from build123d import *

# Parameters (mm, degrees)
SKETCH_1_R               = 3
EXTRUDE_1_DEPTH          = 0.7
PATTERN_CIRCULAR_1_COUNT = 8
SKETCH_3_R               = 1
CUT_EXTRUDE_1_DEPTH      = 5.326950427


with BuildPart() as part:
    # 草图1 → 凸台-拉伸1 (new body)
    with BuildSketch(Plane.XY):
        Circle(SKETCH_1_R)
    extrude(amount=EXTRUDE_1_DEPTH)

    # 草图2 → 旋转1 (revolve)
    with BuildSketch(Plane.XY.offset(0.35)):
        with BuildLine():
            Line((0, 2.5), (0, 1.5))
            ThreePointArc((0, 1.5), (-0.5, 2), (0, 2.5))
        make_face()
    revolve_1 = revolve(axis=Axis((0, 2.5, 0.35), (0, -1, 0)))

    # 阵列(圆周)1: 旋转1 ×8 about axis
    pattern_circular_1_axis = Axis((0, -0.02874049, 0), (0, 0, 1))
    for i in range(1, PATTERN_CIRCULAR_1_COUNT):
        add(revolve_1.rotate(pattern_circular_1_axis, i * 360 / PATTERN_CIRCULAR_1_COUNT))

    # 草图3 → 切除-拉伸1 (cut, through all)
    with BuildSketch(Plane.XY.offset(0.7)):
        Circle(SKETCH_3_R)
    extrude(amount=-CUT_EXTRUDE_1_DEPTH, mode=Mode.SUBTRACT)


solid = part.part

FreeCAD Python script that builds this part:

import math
import FreeCAD as App
import Part
import Sketcher

doc = App.newDocument("Part")
body = doc.addObject("PartDesign::Body", "Body")

# Sketch on XY plane
sketch1 = body.newObject("Sketcher::SketchObject", "Sketch")
sketch1.AttachmentSupport = (doc.getObject("XY_Plane"), [""])
sketch1.MapMode = "FlatFace"
sketch1.addGeometry(Part.Circle(App.Vector(0, 0, 0), App.Vector(0, 0, 1), 3), False)
sketch1.addConstraint([
    Sketcher.Constraint("Coincident", 0, 3, -1, 1),
    Sketcher.Constraint("Diameter", 0, 6.0),
])
pad1 = body.newObject("PartDesign::Pad", "Pad")
pad1.Profile = sketch1
pad1.Length = 0.7

# Sketch on XY plane
sketch2 = body.newObject("Sketcher::SketchObject", "Sketch001")
sketch2.AttachmentSupport = (doc.getObject("XY_Plane"), [""])
sketch2.MapMode = "FlatFace"
sketch2.AttachmentOffset = App.Placement(App.Vector(0, 0, 0.35), App.Rotation())
sketch2.addGeometry([
    Part.LineSegment(App.Vector(0, 1.5, 0), App.Vector(0, 2.5, 0)),
    Part.ArcOfCircle(Part.Circle(App.Vector(0, 2, 0), App.Vector(0, 0, 1), 0.5), math.radians(90), math.radians(270)),
], False)
sketch2.addConstraint([
    Sketcher.Constraint("Coincident", 0, 1, 1, 2),
    Sketcher.Constraint("Coincident", 1, 1, 0, 2),
    Sketcher.Constraint("Vertical", 0),
    Sketcher.Constraint("PointOnObject", 1, 3, -2),
    Sketcher.Constraint("PointOnObject", 0, 1, -2),
    Sketcher.Constraint("Radius", 1, 0.5),
    Sketcher.Constraint("DistanceY", -1, 1, 1, 3, 2.0),
])
revolution = body.newObject("PartDesign::Revolution", "Revolution")
revolution.Profile = sketch2
revolution.ReferenceAxis = (sketch2, ["V_Axis"])
revolution.Angle = 360
doc.recompute()

datumline = body.newObject("PartDesign::Line", "DatumLine")
datumline.Placement = App.Placement(App.Vector(0, -0.02874, 0), App.Rotation(App.Vector(0, 0, 1), App.Vector(0, 0, 1)))
polarpattern = body.newObject("PartDesign::PolarPattern", "PolarPattern")
polarpattern.Originals = [revolution]
polarpattern.Axis = (datumline, [""])
polarpattern.Angle = 360
polarpattern.Occurrences = 8
body.Tip = polarpattern

# Sketch on XY plane
sketch3 = body.newObject("Sketcher::SketchObject", "Sketch002")
sketch3.AttachmentSupport = (doc.getObject("XY_Plane"), [""])
sketch3.MapMode = "FlatFace"
sketch3.AttachmentOffset = App.Placement(App.Vector(0, 0, 0.7), App.Rotation())
sketch3.addGeometry(Part.Circle(App.Vector(0, 0, 0), App.Vector(0, 0, 1), 1), False)
sketch3.addConstraint([
    Sketcher.Constraint("Coincident", 0, 3, -1, 1),
    Sketcher.Constraint("Diameter", 0, 2.0),
])
pocket1 = body.newObject("PartDesign::Pocket", "Pocket")
pocket1.Profile = sketch3
pocket1.Type = "ThroughAll"

doc.recompute()
